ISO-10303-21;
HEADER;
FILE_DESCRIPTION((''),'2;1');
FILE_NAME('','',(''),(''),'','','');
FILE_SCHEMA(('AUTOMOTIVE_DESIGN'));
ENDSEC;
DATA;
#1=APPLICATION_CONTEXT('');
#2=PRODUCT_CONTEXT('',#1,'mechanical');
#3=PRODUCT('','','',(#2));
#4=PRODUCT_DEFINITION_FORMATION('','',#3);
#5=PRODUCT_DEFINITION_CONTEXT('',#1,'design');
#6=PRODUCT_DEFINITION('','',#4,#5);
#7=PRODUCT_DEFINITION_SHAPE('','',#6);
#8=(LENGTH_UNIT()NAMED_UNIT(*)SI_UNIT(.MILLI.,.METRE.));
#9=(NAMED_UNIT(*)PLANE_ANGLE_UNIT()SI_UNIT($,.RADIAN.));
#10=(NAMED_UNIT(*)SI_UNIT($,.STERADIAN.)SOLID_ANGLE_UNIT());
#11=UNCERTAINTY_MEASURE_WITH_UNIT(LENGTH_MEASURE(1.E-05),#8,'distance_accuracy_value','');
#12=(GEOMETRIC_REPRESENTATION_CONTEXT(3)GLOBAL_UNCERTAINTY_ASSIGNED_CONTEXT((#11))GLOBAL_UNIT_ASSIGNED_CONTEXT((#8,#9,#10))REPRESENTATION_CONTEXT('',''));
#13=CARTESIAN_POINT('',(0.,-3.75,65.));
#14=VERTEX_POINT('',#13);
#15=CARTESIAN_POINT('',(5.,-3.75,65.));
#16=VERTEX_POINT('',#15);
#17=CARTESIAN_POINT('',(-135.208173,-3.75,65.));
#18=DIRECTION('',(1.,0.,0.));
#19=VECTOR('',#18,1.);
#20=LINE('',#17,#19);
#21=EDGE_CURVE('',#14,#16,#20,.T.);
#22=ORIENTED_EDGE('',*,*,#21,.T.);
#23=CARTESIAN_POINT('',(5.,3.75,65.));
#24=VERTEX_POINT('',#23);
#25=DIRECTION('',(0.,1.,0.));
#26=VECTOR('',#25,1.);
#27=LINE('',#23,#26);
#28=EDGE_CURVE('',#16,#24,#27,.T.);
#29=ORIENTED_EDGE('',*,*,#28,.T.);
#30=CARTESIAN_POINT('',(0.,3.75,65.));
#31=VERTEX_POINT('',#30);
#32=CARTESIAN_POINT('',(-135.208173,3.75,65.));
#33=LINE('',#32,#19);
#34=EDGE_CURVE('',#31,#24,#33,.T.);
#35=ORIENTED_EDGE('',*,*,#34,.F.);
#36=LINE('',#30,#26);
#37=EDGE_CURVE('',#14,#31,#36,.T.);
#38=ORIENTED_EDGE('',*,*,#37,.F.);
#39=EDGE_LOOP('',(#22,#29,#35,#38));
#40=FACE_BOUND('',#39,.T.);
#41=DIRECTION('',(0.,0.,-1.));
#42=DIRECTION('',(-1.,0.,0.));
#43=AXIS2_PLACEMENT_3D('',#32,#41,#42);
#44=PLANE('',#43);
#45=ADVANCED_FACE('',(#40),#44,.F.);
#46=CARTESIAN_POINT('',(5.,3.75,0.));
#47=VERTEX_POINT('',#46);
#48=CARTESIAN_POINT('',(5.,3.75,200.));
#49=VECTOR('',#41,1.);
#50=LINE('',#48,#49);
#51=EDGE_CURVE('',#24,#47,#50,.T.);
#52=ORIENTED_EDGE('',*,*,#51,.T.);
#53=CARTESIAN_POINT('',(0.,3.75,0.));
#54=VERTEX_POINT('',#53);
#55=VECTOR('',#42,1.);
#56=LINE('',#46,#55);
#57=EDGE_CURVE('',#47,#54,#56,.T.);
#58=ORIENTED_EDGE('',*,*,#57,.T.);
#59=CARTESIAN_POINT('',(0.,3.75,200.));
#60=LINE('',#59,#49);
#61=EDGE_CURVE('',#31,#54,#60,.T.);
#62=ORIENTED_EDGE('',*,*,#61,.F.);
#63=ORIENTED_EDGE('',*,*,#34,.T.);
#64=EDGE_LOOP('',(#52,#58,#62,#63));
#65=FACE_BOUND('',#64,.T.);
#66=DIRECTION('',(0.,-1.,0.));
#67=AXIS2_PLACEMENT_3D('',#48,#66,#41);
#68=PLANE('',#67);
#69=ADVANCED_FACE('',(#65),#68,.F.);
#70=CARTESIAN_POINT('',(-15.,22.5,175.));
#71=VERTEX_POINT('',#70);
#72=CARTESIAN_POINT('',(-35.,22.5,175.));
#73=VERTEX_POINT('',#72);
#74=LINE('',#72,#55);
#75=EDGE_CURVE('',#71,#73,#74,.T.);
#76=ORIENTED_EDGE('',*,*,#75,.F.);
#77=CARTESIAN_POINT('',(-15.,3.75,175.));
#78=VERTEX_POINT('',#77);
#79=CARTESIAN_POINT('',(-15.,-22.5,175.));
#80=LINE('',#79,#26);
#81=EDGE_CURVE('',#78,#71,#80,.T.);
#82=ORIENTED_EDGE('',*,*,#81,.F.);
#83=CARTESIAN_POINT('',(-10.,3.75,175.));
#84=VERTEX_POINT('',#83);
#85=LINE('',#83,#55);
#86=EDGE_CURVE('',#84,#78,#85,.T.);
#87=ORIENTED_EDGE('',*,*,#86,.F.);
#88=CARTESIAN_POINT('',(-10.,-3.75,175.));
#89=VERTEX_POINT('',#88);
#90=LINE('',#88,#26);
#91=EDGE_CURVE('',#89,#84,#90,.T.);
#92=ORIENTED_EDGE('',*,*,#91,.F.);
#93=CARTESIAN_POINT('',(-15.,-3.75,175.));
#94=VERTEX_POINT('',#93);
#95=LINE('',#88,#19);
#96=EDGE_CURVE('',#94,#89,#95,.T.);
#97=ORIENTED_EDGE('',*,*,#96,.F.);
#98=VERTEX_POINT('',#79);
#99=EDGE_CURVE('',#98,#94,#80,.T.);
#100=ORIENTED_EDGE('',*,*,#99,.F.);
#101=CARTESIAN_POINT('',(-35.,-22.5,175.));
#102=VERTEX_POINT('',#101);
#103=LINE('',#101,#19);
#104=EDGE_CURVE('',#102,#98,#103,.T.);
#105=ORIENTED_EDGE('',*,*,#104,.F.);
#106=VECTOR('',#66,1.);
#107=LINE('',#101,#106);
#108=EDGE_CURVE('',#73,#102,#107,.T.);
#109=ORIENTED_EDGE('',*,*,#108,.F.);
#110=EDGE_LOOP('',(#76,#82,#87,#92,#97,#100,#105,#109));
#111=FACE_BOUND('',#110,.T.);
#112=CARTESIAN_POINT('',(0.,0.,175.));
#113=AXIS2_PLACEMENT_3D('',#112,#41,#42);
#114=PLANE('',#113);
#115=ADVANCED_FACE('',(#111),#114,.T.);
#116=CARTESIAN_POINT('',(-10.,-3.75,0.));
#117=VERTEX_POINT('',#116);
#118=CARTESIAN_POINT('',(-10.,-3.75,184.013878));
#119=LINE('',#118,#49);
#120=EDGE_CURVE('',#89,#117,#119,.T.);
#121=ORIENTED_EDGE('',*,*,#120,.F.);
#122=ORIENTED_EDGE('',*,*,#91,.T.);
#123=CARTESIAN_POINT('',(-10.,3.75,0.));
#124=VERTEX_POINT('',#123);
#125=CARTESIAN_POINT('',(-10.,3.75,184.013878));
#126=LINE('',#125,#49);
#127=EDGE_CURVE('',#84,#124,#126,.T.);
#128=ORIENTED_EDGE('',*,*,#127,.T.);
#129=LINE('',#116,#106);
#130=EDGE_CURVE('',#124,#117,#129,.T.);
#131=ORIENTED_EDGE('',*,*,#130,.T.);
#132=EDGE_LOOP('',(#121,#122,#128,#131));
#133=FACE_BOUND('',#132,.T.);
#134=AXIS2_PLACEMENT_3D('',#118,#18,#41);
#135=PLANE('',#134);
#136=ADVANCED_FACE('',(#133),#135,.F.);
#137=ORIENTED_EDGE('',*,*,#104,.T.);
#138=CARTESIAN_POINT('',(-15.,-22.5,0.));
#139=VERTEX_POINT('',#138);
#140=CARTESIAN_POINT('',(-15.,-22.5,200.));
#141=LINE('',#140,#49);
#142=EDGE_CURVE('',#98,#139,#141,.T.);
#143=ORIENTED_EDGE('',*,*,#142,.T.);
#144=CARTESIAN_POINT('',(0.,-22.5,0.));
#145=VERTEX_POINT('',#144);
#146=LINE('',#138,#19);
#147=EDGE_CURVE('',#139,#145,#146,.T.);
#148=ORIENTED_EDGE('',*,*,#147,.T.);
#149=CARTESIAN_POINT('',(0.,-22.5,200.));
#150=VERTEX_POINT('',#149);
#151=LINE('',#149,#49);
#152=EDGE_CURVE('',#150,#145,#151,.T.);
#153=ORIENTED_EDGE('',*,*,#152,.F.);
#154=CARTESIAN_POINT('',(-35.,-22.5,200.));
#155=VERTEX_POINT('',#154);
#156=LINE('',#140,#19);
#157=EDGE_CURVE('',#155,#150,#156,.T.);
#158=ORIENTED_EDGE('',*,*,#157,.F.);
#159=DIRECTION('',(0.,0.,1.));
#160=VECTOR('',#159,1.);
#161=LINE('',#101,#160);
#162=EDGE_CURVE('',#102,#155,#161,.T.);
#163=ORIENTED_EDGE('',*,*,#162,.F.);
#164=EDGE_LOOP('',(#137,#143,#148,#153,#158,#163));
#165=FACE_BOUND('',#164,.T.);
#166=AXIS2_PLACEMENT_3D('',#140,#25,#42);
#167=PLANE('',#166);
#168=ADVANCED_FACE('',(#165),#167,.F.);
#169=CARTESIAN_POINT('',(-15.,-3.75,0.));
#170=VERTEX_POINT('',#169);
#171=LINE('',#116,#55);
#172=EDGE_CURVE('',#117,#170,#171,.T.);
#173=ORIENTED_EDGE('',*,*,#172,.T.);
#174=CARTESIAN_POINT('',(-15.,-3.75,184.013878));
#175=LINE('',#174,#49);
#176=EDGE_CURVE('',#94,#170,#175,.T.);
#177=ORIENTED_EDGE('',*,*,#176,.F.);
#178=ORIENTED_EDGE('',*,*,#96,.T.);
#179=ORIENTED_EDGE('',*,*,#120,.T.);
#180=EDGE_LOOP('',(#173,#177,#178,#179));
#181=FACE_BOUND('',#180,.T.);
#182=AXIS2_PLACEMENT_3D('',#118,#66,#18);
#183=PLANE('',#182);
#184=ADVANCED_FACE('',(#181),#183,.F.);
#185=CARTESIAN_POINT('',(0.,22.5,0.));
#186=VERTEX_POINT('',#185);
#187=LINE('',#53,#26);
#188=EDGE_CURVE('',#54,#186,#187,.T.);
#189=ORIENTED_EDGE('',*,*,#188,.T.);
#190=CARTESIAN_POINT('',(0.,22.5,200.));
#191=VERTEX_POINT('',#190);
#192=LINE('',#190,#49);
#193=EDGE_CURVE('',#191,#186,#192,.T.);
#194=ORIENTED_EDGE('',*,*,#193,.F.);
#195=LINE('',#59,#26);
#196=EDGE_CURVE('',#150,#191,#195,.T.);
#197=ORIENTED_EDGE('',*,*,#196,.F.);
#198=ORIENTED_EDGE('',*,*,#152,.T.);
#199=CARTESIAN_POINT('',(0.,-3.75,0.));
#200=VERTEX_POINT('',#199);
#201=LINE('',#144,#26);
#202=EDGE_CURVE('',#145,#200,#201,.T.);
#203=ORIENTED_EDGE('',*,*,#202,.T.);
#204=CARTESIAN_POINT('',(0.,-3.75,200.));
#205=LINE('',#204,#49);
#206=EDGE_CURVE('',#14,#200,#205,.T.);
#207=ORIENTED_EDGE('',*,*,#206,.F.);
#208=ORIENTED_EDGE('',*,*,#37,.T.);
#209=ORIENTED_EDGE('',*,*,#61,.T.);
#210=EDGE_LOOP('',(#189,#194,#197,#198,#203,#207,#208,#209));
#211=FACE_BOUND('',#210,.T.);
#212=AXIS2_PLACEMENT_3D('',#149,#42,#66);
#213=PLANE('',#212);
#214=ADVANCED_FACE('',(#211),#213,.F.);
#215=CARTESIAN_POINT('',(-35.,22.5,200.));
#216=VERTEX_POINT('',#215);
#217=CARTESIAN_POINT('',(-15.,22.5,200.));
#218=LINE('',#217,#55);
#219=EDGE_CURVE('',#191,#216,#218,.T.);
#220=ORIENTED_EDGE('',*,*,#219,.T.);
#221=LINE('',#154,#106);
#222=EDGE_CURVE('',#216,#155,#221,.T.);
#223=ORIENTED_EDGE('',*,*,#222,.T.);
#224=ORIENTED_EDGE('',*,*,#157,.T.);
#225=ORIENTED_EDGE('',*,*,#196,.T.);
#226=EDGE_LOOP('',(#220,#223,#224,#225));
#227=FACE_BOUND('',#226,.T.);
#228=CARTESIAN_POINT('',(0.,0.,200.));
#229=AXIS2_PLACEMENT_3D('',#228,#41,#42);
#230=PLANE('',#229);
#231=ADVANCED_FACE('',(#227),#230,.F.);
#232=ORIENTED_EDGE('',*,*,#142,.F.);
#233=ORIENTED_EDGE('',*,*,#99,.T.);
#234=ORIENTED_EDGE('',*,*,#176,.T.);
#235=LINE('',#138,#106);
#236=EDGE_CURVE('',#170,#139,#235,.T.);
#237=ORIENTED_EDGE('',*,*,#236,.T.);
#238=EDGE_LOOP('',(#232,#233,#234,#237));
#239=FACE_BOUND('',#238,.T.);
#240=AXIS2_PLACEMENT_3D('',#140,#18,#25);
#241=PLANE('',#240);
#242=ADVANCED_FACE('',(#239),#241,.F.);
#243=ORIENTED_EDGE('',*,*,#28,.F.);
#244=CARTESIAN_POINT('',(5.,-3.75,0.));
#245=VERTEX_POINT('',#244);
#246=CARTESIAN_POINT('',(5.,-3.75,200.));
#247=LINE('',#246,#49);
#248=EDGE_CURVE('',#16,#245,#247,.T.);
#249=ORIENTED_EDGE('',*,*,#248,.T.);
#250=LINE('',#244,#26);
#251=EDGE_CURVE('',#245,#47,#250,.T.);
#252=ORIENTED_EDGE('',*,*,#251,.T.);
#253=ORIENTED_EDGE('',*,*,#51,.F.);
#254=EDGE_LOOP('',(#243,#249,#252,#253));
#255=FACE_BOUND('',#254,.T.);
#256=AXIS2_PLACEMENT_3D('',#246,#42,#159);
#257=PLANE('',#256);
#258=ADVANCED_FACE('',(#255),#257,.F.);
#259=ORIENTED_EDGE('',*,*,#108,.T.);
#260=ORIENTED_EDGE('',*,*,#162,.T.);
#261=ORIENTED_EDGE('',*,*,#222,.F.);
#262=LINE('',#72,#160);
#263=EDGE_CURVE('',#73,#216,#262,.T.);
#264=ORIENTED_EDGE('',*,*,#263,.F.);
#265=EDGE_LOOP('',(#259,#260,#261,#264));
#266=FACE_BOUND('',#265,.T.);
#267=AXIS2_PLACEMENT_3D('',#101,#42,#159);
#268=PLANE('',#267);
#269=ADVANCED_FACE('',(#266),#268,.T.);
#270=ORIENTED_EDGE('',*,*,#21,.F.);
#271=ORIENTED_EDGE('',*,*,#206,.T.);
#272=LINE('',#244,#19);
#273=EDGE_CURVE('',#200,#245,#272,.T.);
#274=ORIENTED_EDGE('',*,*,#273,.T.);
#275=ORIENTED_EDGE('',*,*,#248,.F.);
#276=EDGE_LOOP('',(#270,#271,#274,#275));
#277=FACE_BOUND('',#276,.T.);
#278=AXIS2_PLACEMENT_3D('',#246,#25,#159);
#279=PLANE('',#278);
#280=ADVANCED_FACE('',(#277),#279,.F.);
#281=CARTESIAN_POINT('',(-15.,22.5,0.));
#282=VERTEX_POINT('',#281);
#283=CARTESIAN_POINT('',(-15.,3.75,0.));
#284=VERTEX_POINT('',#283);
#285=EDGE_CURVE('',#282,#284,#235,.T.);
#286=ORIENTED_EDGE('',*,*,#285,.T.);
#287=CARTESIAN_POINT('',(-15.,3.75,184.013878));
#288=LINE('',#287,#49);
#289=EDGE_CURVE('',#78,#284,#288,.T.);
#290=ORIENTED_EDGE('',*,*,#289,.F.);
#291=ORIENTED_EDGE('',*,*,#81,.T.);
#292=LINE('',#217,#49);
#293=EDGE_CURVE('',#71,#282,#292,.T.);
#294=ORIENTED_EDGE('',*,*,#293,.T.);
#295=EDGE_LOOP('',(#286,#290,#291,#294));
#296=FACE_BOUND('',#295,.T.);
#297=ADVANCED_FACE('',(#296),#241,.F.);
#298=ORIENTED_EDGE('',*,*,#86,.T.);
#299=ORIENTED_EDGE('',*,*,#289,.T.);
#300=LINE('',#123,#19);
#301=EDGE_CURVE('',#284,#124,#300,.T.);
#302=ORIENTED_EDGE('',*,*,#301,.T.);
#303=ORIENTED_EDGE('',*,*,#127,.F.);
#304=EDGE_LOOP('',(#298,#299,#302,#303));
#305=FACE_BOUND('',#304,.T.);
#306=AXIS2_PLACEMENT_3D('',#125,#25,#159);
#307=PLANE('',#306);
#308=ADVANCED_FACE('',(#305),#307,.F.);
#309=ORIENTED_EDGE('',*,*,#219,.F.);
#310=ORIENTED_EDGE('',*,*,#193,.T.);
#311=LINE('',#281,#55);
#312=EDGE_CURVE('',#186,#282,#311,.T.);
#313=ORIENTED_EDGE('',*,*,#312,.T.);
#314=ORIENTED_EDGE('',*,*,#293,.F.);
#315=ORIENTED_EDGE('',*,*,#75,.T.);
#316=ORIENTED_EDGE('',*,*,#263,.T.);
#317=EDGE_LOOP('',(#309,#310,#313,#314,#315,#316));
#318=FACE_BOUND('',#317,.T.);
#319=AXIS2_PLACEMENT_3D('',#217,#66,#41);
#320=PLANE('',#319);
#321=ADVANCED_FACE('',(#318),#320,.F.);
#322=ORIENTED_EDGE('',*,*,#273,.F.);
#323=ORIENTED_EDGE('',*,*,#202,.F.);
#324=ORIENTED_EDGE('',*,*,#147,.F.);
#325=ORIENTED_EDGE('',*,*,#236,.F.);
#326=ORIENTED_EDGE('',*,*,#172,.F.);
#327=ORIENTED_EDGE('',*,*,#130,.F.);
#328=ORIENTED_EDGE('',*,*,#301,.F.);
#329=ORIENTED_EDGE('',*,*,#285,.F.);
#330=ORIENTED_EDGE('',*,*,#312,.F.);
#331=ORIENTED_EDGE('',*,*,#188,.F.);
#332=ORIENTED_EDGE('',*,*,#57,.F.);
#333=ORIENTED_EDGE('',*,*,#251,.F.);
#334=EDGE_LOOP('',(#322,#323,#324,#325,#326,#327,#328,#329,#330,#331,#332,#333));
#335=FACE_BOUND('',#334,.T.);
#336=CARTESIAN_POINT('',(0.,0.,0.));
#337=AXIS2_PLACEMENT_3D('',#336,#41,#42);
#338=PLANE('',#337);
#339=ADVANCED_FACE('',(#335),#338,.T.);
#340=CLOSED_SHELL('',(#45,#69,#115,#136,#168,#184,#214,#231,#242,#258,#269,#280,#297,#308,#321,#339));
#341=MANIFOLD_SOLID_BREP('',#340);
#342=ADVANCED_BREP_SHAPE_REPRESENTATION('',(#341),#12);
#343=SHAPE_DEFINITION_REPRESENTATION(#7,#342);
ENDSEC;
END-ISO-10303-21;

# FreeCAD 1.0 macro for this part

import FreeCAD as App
import Part
import Sketcher
Q = App.Units.Quantity


def add_polygon(sketch, points):
    """Adds a closed chain of lines whose ends are joined by coincident constraints."""
    first, n = sketch.GeometryCount, len(points)
    for a, b in zip(points, points[1:] + points[:1]):
        sketch.addGeometry(Part.LineSegment(App.Vector(*a, 0), App.Vector(*b, 0)), False)
    for i in range(n):
        sketch.addConstraint(Sketcher.Constraint("Coincident", first + i, 2, first + (i + 1) % n, 1))

doc = App.newDocument("Part")
body = doc.addObject("PartDesign::Body", "Body")

# Sketch on XY plane
sketch1 = doc.addObject("Sketcher::SketchObject", "Sketch")
body.addObject(sketch1)
sketch1.AttachmentSupport = (doc.XY_Plane, [""])
sketch1.MapMode = "FlatFace"
add_polygon(sketch1, [(0, -4), (5, -4), (5, 4), (0, 4), (0, 22), (-15, 22), (-15, -22), (0, -22)])  # lines 0-7
sketch1.addConstraint([
    Sketcher.Constraint("Horizontal", 0),
    Sketcher.Constraint("Vertical", 1),
    Sketcher.Constraint("Horizontal", 2),
    Sketcher.Constraint("Vertical", 3),
    Sketcher.Constraint("Horizontal", 4),
    Sketcher.Constraint("Vertical", 5),
    Sketcher.Constraint("Horizontal", 6),
    Sketcher.Constraint("Vertical", 7),
    Sketcher.Constraint("Symmetric", 3, 2, 6, 2, -1, 1),
    Sketcher.Constraint("Symmetric", 2, 2, 7, 2, -1),
    Sketcher.Constraint("DistanceX", 0, 1, 0, 2, Q("5 mm")),
    Sketcher.Constraint("DistanceX", 4, 2, 4, 1, Q("15 mm")),
    Sketcher.Constraint("DistanceY", 5, 2, 5, 1, Q("45 mm")),
    Sketcher.Constraint("DistanceY", 1, 1, 1, 2, Q("7.5 mm")),
])
pad1 = doc.addObject("PartDesign::Pad", "Pad")
body.addObject(pad1)
pad1.Profile = sketch1
pad1.Length = 200

# Sketch on YZ plane
sketch2 = doc.addObject("Sketcher::SketchObject", "Sketch001")
body.addObject(sketch2)
sketch2.AttachmentSupport = (doc.YZ_Plane, [""])
sketch2.MapMode = "FlatFace"
sketch2.AttachmentOffset = App.Placement(App.Vector(0, 0, 5), App.Rotation())
add_polygon(sketch2, [(4, 200), (-4, 200), (-4, 65), (4, 65)])  # lines 0-3
sketch2.addConstraint([
    Sketcher.Constraint("Horizontal", 0),
    Sketcher.Constraint("Vertical", 1),
    Sketcher.Constraint("Horizontal", 2),
    Sketcher.Constraint("Vertical", 3),
    Sketcher.Constraint("DistanceY", 1, 2, 1, 1, Q("135 mm")),
    Sketcher.Constraint("DistanceX", 0, 2, 0, 1, Q("7.5 mm")),
    Sketcher.Constraint("DistanceY", -1, 1, 0, 2, Q("200 mm")),
    Sketcher.Constraint("DistanceX", 0, 2, -1, 1, Q("3.75 mm")),
])
pocket1 = doc.addObject("PartDesign::Pocket", "Pocket")
body.addObject(pocket1)
pocket1.Profile = sketch2
pocket1.Length = 5

# Sketch on XY plane
sketch3 = doc.addObject("Sketcher::SketchObject", "Sketch002")
body.addObject(sketch3)
sketch3.AttachmentSupport = (doc.XY_Plane, [""])
sketch3.MapMode = "FlatFace"
sketch3.AttachmentOffset = App.Placement(App.Vector(0, 0, 200), App.Rotation())
add_polygon(sketch3, [(-35, 22), (-35, -22), (-15, -22), (-15, 22)])  # lines 0-3
sketch3.addConstraint([
    Sketcher.Constraint("Vertical", 0),
    Sketcher.Constraint("Horizontal", 1),
    Sketcher.Constraint("Vertical", 2),
    Sketcher.Constraint("Horizontal", 3),
    Sketcher.Constraint("DistanceX", 1, 1, 1, 2, Q("20 mm")),
    Sketcher.Constraint("DistanceY", 0, 2, 0, 1, Q("45 mm")),
    Sketcher.Constraint("DistanceX", 0, 2, -1, 1, Q("35 mm")),
    Sketcher.Constraint("DistanceY", 0, 2, -1, 1, Q("22.5 mm")),
])
pad2 = doc.addObject("PartDesign::Pad", "Pad001")
body.addObject(pad2)
pad2.Profile = sketch3
pad2.Length = 25
pad2.Reversed = True

# Sketch on XY plane
sketch4 = doc.addObject("Sketcher::SketchObject", "Sketch003")
body.addObject(sketch4)
sketch4.AttachmentSupport = (doc.XY_Plane, [""])
sketch4.MapMode = "FlatFace"
add_polygon(sketch4, [(-10, 4), (-10, -4), (-15, -4), (-15, 4)])  # lines 0-3
sketch4.addConstraint([
    Sketcher.Constraint("Vertical", 0),
    Sketcher.Constraint("Horizontal", 1),
    Sketcher.Constraint("Vertical", 2),
    Sketcher.Constraint("Horizontal", 3),
    Sketcher.Constraint("DistanceX", 1, 2, 1, 1, Q("5 mm")),
    Sketcher.Constraint("DistanceY", 0, 2, 0, 1, Q("7.5 mm")),
    Sketcher.Constraint("DistanceX", 0, 2, -1, 1, Q("10 mm")),
    Sketcher.Constraint("DistanceY", 0, 2, -1, 1, Q("3.75 mm")),
])
pocket2 = doc.addObject("PartDesign::Pocket", "Pocket001")
body.addObject(pocket2)
pocket2.Profile = sketch4
pocket2.Length = 175
pocket2.Reversed = True

doc.recompute()
